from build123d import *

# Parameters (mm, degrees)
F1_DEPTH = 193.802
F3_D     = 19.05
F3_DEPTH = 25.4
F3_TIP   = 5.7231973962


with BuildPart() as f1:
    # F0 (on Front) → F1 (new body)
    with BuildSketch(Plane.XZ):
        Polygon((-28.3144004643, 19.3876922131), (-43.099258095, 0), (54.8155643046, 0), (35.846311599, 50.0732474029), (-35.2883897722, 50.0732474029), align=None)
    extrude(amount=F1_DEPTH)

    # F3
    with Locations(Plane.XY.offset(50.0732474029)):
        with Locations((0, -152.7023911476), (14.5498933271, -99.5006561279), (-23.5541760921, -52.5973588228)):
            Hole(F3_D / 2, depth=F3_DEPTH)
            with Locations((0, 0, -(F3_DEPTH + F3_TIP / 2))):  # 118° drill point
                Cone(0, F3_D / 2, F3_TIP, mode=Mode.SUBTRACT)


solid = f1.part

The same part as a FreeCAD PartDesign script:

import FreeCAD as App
import Part
import Sketcher

V = App.Vector
Q = App.Units.Quantity


def add_polygon(sketch, points):
    """Adds a closed chain of lines whose ends are joined by coincident constraints."""
    first, n = sketch.GeometryCount, len(points)
    for a, b in zip(points, points[1:] + points[:1]):
        sketch.addGeometry(Part.LineSegment(App.Vector(*a, 0), App.Vector(*b, 0)), False)
    for i in range(n):
        sketch.addConstraint(Sketcher.Constraint("Coincident", first + i, 2, first + (i + 1) % n, 1))

doc = App.newDocument("Part")
body = doc.addObject("PartDesign::Body", "Body")

sketch1 = body.newObject("Sketcher::SketchObject", "Sketch")
sketch1.AttachmentSupport = (doc.getObject("XZ_Plane"), [""])
sketch1.MapMode = "FlatFace"
add_polygon(sketch1, [(-28, 19), (-43, 0), (55, 0), (36, 50), (-35, 50)])
sketch1.addConstraint([
    Sketcher.Constraint("Horizontal", 1),
    Sketcher.Constraint("Horizontal", 3),
    Sketcher.Constraint("PointOnObject", 0, 2, -1),
    Sketcher.Constraint("DistanceX", 3, 2, 3, 1, 71.134701),
    Sketcher.Constraint("DistanceX", 4, 2, -1, 1, 28.3144),
    Sketcher.Constraint("Distance", 0, 24.38185),
    Sketcher.Constraint("DistanceX", 1, 1, 1, 2, 97.914822),
    Sketcher.Constraint("DistanceX", 0, 2, -1, 1, 43.099258),
    Sketcher.Constraint("DistanceX", -1, 1, 2, 2, 35.846312),
    Sketcher.Constraint("Distance", 2, 53.545893),
])
pad1 = body.newObject("PartDesign::Pad", "Pad")
pad1.Profile = sketch1
pad1.Length = Q("7.63 in")

sketch2 = body.newObject("Sketcher::SketchObject", "Sketch001")
sketch2.AttachmentSupport = (doc.getObject("XY_Plane"), [""])
sketch2.MapMode = "FlatFace"
sketch2.AttachmentOffset = App.Placement(V(0, 0, 50.073247), App.Rotation())
sketch2.addGeometry([
    Part.Circle(V(0, -153, 0), V(0, 0, 1), 10),
    Part.Circle(V(15, -100, 0), V(0, 0, 1), 10),
    Part.Circle(V(-24, -53, 0), V(0, 0, 1), 10),
], False)
sketch2.addConstraint([
    Sketcher.Constraint("Equal", 0, 1),
    Sketcher.Constraint("Equal", 1, 2),
    Sketcher.Constraint("PointOnObject", 0, 3, -2),
    Sketcher.Constraint("Diameter", 0, Q("0.75 in")),
    Sketcher.Constraint("DistanceY", 0, 3, -1, 1, 152.702391),
    Sketcher.Constraint("DistanceY", 2, 3, -1, 1, 52.597359),
    Sketcher.Constraint("DistanceX", 2, 3, 1, 3, 38.104069),
    Sketcher.Constraint("DistanceX", -1, 1, 1, 3, 14.549893),
    Sketcher.Constraint("DistanceY", 1, 3, -1, 1, 99.500656),
])
doc.recompute()
hole = body.newObject("PartDesign::Hole", "Hole")
hole.Profile = sketch2
hole.ThreadType = "None"
hole.Diameter = Q("0.75 in")
hole.DepthType = "Dimension"
hole.Depth = Q("1 in")
hole.DrillPoint = "Angled"
hole.DrillPointAngle = 118

doc.recompute()
